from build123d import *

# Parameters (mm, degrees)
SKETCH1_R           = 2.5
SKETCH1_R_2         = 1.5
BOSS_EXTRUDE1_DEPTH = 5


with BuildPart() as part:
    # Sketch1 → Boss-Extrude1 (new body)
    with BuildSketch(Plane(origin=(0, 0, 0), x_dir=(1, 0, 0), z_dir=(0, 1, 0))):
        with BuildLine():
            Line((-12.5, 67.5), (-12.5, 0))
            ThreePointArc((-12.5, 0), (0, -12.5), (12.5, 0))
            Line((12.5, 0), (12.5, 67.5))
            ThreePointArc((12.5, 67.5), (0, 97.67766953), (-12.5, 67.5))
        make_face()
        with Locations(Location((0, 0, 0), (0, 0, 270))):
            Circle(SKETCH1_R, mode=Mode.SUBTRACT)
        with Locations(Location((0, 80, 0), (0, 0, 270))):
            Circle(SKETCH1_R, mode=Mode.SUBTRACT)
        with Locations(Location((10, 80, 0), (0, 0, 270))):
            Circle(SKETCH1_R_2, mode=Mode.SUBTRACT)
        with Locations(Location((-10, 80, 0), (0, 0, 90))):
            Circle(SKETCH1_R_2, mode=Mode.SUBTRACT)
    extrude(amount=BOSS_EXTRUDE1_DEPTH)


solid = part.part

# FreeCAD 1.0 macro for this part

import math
import FreeCAD as App
import Part
import Sketcher

V = App.Vector
Q = App.Units.Quantity

doc = App.newDocument("Part")
params = doc.addObject("Spreadsheet::Sheet", "Params")
for row, (alias, value) in enumerate([
    ("sketch1_diameter", "5 mm"),
    ("sketch1_diameter2", "3 mm"),
    ("sketch1_radius", "12.5 mm"),
    ("sketch1_height", "67.5 mm"),
    ("pad1_length", "5 mm"),
], start=1):
    params.set(f"A{row}", alias)
    params.set(f"B{row}", "=" + value)
    params.setAlias(f"B{row}", alias)

body = doc.addObject("PartDesign::Body", "Body")

sketch1 = doc.addObject("Sketcher::SketchObject", "Sketch")
body.addObject(sketch1)
sketch1.AttachmentSupport = (doc.XZ_Plane, [""])
sketch1.MapMode = "FlatFace"
sketch1.addGeometry([
    Part.LineSegment(V(-12.5, -67.5, 0), V(-12.5, 0, 0)),
    Part.ArcOfCircle(Part.Circle(V(0, 0, 0), V(0, 0, 1), 12.5), math.radians(0), math.radians(180)),
    Part.LineSegment(V(12.5, 0, 0), V(12.5, -67.5, 0)),
    Part.ArcOfCircle(Part.Circle(V(0, -80, 0), V(0, 0, 1), 17.7), math.radians(135), math.radians(405)),
    Part.Circle(V(0, 0, 0), V(0, 0, 1), 2.5),
    Part.Circle(V(-10, -80, 0), V(0, 0, 1), 1.5),
    Part.Circle(V(0, -80, 0), V(0, 0, 1), 2.5),
    Part.Circle(V(10, -80, 0), V(0, 0, 1), 1.5),
], False)
sketch1.addConstraint([
    Sketcher.Constraint("Tangent", 0, 2, 1, 2),
    Sketcher.Constraint("Tangent", 1, 1, 2, 1),
    Sketcher.Constraint("Coincident", 2, 2, 3, 2),
    Sketcher.Constraint("Coincident", 3, 1, 0, 1),
    Sketcher.Constraint("Vertical", 0),
    Sketcher.Constraint("Vertical", 2),
    Sketcher.Constraint("Coincident", 1, 3, -1, 1),
    Sketcher.Constraint("Coincident", 4, 3, -1, 1),
    Sketcher.Constraint("Coincident", 6, 3, 3, 3),
    Sketcher.Constraint("Equal", 4, 6),
    Sketcher.Constraint("Equal", 5, 7),
    Sketcher.Constraint("Symmetric", 5, 3, 7, 3, -2),
    Sketcher.Constraint("PointOnObject", 3, 3, -2),
    Sketcher.Constraint("Horizontal", 3, 3, 5, 3),
    Sketcher.Constraint("Diameter", 4, Q("5 mm")),
    Sketcher.Constraint("Diameter", 5, Q("3 mm")),
    Sketcher.Constraint("Radius", 1, Q("12.5 mm")),
    Sketcher.Constraint("DistanceY", 0, 1, 0, 2, Q("67.5 mm")),
    Sketcher.Constraint("DistanceY", 3, 3, -1, 1, Q("80 mm")),
    Sketcher.Constraint("DistanceX", 5, 3, -1, 1, Q("10 mm")),
])
sketch1.setExpression("Constraints[14]", "Params.sketch1_diameter")
sketch1.setExpression("Constraints[15]", "Params.sketch1_diameter2")
sketch1.setExpression("Constraints[16]", "Params.sketch1_radius")
sketch1.setExpression("Constraints[17]", "Params.sketch1_height")
pad1 = doc.addObject("PartDesign::Pad", "Pad")
body.addObject(pad1)
pad1.Profile = sketch1
pad1.setExpression("Length", "Params.pad1_length")
pad1.Reversed = True

doc.recompute()
